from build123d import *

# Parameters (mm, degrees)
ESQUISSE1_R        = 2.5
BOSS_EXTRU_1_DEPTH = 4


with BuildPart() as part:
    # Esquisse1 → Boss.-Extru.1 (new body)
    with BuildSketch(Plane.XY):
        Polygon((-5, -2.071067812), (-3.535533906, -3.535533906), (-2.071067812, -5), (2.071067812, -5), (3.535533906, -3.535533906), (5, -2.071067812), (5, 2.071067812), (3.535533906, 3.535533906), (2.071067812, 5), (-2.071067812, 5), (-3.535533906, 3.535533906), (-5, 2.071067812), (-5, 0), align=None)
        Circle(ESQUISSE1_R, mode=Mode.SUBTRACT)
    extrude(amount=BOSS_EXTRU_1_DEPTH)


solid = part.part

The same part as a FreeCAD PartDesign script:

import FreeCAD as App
import Part
import Sketcher
from FreeCAD import Vector
Q = App.Units.Quantity

doc = App.newDocument("Part")
body = doc.addObject("PartDesign::Body", "Body")

sketch1 = body.newObject("Sketcher::SketchObject", "Sketch")
sketch1.AttachmentSupport = (doc.getObject("XY_Plane"), [""])
sketch1.MapMode = "FlatFace"
sketch1.addGeometry(Part.LineSegment(Vector(-5, -2.071068, 0), Vector(-2.071068, -5, 0)), False)
sketch1.addGeometry(Part.LineSegment(Vector(-2.071068, -5, 0), Vector(2.071068, -5, 0)), False)
sketch1.addGeometry(Part.LineSegment(Vector(2.071068, -5, 0), Vector(5, -2.071068, 0)), False)
sketch1.addGeometry(Part.LineSegment(Vector(5, -2.071068, 0), Vector(5, 2.071068, 0)), False)
sketch1.addGeometry(Part.LineSegment(Vector(5, 2.071068, 0), Vector(2.071068, 5, 0)), False)
sketch1.addGeometry(Part.LineSegment(Vector(2.071068, 5, 0), Vector(-2.071068, 5, 0)), False)
sketch1.addGeometry(Part.LineSegment(Vector(-2.071068, 5, 0), Vector(-5, 2.071068, 0)), False)
sketch1.addGeometry(Part.LineSegment(Vector(-5, 2.071068, 0), Vector(-5, -2.071068, 0)), False)
sketch1.addGeometry(Part.Circle(Vector(0, 0, 0), Vector(0, 0, 1), 2.5), False)
sketch1.addConstraint(Sketcher.Constraint("Coincident", 0, 2, 1, 1))
sketch1.addConstraint(Sketcher.Constraint("Coincident", 1, 2, 2, 1))
sketch1.addConstraint(Sketcher.Constraint("Coincident", 2, 2, 3, 1))
sketch1.addConstraint(Sketcher.Constraint("Coincident", 3, 2, 4, 1))
sketch1.addConstraint(Sketcher.Constraint("Coincident", 4, 2, 5, 1))
sketch1.addConstraint(Sketcher.Constraint("Coincident", 5, 2, 6, 1))
sketch1.addConstraint(Sketcher.Constraint("Coincident", 6, 2, 7, 1))
sketch1.addConstraint(Sketcher.Constraint("Coincident", 7, 2, 0, 1))
sketch1.addConstraint(Sketcher.Constraint("Horizontal", 1))
sketch1.addConstraint(Sketcher.Constraint("Vertical", 3))
sketch1.addConstraint(Sketcher.Constraint("Horizontal", 5))
sketch1.addConstraint(Sketcher.Constraint("Vertical", 7))
sketch1.addConstraint(Sketcher.Constraint("Coincident", 8, 3, -1, 1))
sketch1.addConstraint(Sketcher.Constraint("Symmetric", 0, 2, 4, 2, -1, 1))
sketch1.addConstraint(Sketcher.Constraint("Symmetric", 2, 2, 6, 2, -1, 1))
sketch1.addConstraint(Sketcher.Constraint("Perpendicular", 0, 2))
sketch1.addConstraint(Sketcher.Constraint("Perpendicular", 2, 4))
sketch1.addConstraint(Sketcher.Constraint("Perpendicular", 4, 6))
sketch1.addConstraint(Sketcher.Constraint("Horizontal", 3, 2, 6, 2))
sketch1.addConstraint(Sketcher.Constraint("Vertical", 1, 2, 4, 2))
sketch1.addConstraint(Sketcher.Constraint("Equal", 5, 3))
sketch1.addConstraint(Sketcher.Constraint("Diameter", 8, Q("5 mm")))
sketch1.addConstraint(Sketcher.Constraint("DistanceY", 0, 2, -1, 1, Q("5 mm")))
sketch1.addConstraint(Sketcher.Constraint("DistanceX", 1, 1, 1, 2, Q("4.142136 mm")))
pad1 = body.newObject("PartDesign::Pad", "Pad")
pad1.Profile = sketch1
pad1.Length = 4

doc.recompute()
